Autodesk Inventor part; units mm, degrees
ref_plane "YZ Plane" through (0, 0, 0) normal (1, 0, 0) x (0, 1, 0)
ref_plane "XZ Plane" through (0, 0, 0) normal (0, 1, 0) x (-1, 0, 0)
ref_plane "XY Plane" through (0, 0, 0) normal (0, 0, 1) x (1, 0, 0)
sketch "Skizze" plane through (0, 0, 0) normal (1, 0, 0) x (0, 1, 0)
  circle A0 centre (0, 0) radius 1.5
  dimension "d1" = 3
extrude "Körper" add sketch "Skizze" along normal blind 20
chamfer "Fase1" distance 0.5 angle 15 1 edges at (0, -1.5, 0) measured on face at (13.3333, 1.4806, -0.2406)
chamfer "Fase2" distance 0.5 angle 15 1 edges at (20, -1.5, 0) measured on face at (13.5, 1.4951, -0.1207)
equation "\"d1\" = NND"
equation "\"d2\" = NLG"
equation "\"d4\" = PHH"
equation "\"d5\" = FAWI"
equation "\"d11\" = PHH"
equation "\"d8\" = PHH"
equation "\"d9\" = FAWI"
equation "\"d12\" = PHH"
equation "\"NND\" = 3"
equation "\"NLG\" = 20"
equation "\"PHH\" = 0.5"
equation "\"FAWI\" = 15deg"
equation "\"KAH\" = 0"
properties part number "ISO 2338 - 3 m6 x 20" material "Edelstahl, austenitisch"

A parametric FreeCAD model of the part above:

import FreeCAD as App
import Part
import Sketcher


def edges_at(feature, points):
    """Names of the edges that pass closest to the given points."""
    edges = feature.Shape.Edges
    near = lambda p: min(range(len(edges)), key=lambda i: edges[i].distToShape(Part.Vertex(*p))[0])
    return sorted({f"Edge{near(p) + 1}" for p in points})

doc = App.newDocument("Part")
body = doc.addObject("PartDesign::Body", "Body")

# Sketch on YZ plane
sketch1 = doc.addObject("Sketcher::SketchObject", "Sketch")
body.addObject(sketch1)
sketch1.AttachmentSupport = (doc.YZ_Plane, [""])
sketch1.MapMode = "FlatFace"
sketch1.addGeometry(Part.Circle(App.Vector(0, 0, 0), App.Vector(0, 0, 1), 1.5), False)
sketch1.addConstraint(Sketcher.Constraint("Coincident", 0, 3, -1, 1))
sketch1.addConstraint(Sketcher.Constraint("Diameter", 0, 3.0))
pad1 = doc.addObject("PartDesign::Pad", "Pad")
body.addObject(pad1)
pad1.Profile = sketch1
pad1.Length = 20
doc.recompute()

chamfer = doc.addObject("PartDesign::Chamfer", "Chamfer")
body.addObject(chamfer)
chamfer.Base = (pad1, edges_at(pad1, [(0, -1.5, 0)]))
chamfer.ChamferType = "Distance and Angle"
chamfer.Size = 0.5
chamfer.Angle = 15
doc.recompute()

chamfer2 = doc.addObject("PartDesign::Chamfer", "Chamfer001")
body.addObject(chamfer2)
chamfer2.Base = (chamfer, edges_at(chamfer, [(20, -1.5, 0)]))
chamfer2.ChamferType = "Distance and Angle"
chamfer2.Size = 0.5
chamfer2.Angle = 15

doc.recompute()
